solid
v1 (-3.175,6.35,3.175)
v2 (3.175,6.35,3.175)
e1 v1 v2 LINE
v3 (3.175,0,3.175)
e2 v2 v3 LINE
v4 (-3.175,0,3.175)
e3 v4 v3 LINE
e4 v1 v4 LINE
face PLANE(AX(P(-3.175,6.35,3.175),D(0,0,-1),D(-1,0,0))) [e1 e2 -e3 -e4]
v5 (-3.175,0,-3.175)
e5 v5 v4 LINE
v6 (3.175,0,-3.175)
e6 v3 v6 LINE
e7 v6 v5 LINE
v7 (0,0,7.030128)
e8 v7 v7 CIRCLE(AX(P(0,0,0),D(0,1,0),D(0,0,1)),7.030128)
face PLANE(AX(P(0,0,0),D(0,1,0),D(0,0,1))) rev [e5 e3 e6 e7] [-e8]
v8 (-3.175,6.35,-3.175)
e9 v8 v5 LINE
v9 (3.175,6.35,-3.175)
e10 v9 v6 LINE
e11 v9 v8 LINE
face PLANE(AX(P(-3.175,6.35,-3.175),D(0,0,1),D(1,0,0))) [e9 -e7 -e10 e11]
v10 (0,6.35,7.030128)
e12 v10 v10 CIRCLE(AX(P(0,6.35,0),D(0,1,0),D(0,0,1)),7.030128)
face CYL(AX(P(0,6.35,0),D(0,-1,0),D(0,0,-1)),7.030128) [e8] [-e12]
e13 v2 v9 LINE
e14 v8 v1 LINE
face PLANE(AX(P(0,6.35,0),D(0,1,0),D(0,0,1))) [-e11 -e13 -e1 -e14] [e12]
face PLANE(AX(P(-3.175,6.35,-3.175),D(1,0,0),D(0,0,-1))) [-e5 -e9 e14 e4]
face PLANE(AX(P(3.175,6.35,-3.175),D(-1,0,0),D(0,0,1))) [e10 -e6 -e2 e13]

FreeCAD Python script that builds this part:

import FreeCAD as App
import Part
import Sketcher
from FreeCAD import Vector
Q = App.Units.Quantity


def add_polygon(sketch, points):
    """Adds a closed chain of lines whose ends are joined by coincident constraints."""
    first, n = sketch.GeometryCount, len(points)
    for a, b in zip(points, points[1:] + points[:1]):
        sketch.addGeometry(Part.LineSegment(App.Vector(*a, 0), App.Vector(*b, 0)), False)
    for i in range(n):
        sketch.addConstraint(Sketcher.Constraint("Coincident", first + i, 2, first + (i + 1) % n, 1))

doc = App.newDocument("Part")
params = doc.addObject("Spreadsheet::Sheet", "Params")
for row, (alias, value) in enumerate([
    ("sketch1_width", "0.25 in"),
    ("pad1_length", "0.25 in"),
], start=1):
    params.set(f"A{row}", alias)
    params.set(f"B{row}", "=" + value)
    params.setAlias(f"B{row}", alias)

body = doc.addObject("PartDesign::Body", "Body")

# Sketch on XZ plane
sketch1 = doc.addObject("Sketcher::SketchObject", "Sketch")
body.addObject(sketch1)
sketch1.AttachmentSupport = (doc.XZ_Plane, [""])
sketch1.MapMode = "FlatFace"
sketch1.addGeometry(Part.Circle(Vector(0, 0, 0), Vector(0, 0, 1), 7.030128), False)  # 0
add_polygon(sketch1, [(3.175, 3.175), (-3.175, 3.175), (-3.175, -3.175), (3.175, -3.175)])  # lines 1-4
sketch1.addConstraint([
    Sketcher.Constraint("Horizontal", 1),
    Sketcher.Constraint("Vertical", 2),
    Sketcher.Constraint("Horizontal", 3),
    Sketcher.Constraint("Vertical", 4),
    Sketcher.Constraint("Coincident", 0, 3, -1, 1),
    Sketcher.Constraint("Symmetric", 1, 2, 3, 2, -1, 1),
    Sketcher.Constraint("Equal", 3, 2),
    Sketcher.Constraint("DistanceX", 1, 2, 1, 1, Q("0.25 in")),
    Sketcher.Constraint("Diameter", 0, 14.060256),
])
sketch1.setExpression("Constraints[11]", "Params.sketch1_width")
pad1 = doc.addObject("PartDesign::Pad", "Pad")
body.addObject(pad1)
pad1.Profile = sketch1
pad1.setExpression("Length", "Params.pad1_length")
pad1.Reversed = True

doc.recompute()
